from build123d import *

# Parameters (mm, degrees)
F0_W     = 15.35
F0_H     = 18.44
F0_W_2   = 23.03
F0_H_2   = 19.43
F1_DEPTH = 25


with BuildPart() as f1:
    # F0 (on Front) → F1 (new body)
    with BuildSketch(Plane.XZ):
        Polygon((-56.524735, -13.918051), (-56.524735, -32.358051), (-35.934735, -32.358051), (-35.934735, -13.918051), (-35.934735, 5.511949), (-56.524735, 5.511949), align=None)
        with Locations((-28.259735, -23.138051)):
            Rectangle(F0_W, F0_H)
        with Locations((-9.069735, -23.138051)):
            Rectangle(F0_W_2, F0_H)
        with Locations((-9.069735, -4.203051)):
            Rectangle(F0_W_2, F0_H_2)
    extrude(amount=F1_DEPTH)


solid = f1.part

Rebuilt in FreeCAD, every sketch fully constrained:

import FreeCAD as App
import Part
import Sketcher
from FreeCAD import Vector

doc = App.newDocument("Part")
body = doc.addObject("PartDesign::Body", "Body")

# Sketch on XZ plane
sketch1 = doc.addObject("Sketcher::SketchObject", "Sketch")
body.addObject(sketch1)
sketch1.AttachmentSupport = (doc.XZ_Plane, [""])
sketch1.MapMode = "FlatFace"
sketch1.addGeometry([
    Part.LineSegment(Vector(-56.524735, -32.358051, 0), Vector(2.445265, -32.358051, 0)),  # 0
    Part.LineSegment(Vector(2.445265, -32.358051, 0), Vector(2.445265, 5.511949, 0)),  # 1
    Part.LineSegment(Vector(2.445265, 5.511949, 0), Vector(-20.584735, 5.511949, 0)),  # 2
    Part.LineSegment(Vector(-20.584735, 5.511949, 0), Vector(-20.584735, -13.918051, 0)),  # 3
    Part.LineSegment(Vector(-20.584735, -13.918051, 0), Vector(-35.934735, -13.918051, 0)),  # 4
    Part.LineSegment(Vector(-35.934735, -13.918051, 0), Vector(-35.934735, 5.511949, 0)),  # 5
    Part.LineSegment(Vector(-35.934735, 5.511949, 0), Vector(-56.524735, 5.511949, 0)),  # 6
    Part.LineSegment(Vector(-56.524735, 5.511949, 0), Vector(-56.524735, -32.358051, 0)),  # 7
], False)
sketch1.addConstraint([
    Sketcher.Constraint("Coincident", 0, 2, 1, 1),
    Sketcher.Constraint("Coincident", 1, 2, 2, 1),
    Sketcher.Constraint("Coincident", 2, 2, 3, 1),
    Sketcher.Constraint("Coincident", 3, 2, 4, 1),
    Sketcher.Constraint("Coincident", 4, 2, 5, 1),
    Sketcher.Constraint("Coincident", 5, 2, 6, 1),
    Sketcher.Constraint("Coincident", 6, 2, 7, 1),
    Sketcher.Constraint("Coincident", 7, 2, 0, 1),
    Sketcher.Constraint("Horizontal", 0),
    Sketcher.Constraint("Vertical", 1),
    Sketcher.Constraint("Horizontal", 2),
    Sketcher.Constraint("Vertical", 3),
    Sketcher.Constraint("Horizontal", 4),
    Sketcher.Constraint("Vertical", 5),
    Sketcher.Constraint("Horizontal", 6),
    Sketcher.Constraint("Vertical", 7),
    Sketcher.Constraint("Horizontal", 2, 2, 5, 2),
    Sketcher.Constraint("DistanceX", 0, 1, 0, 2, 58.97),
    Sketcher.Constraint("DistanceX", 2, 2, 2, 1, 23.03),
    Sketcher.Constraint("DistanceX", 4, 2, 4, 1, 15.35),
    Sketcher.Constraint("DistanceY", 1, 1, 1, 2, 37.87),
    Sketcher.Constraint("DistanceY", 3, 2, 3, 1, 19.43),
    Sketcher.Constraint("DistanceY", 0, 2, -1, 1, 32.358051),
    Sketcher.Constraint("DistanceX", -1, 1, 0, 2, 2.445265),
])
pad1 = doc.addObject("PartDesign::Pad", "Pad")
body.addObject(pad1)
pad1.Profile = sketch1
pad1.Length = 25

doc.recompute()
